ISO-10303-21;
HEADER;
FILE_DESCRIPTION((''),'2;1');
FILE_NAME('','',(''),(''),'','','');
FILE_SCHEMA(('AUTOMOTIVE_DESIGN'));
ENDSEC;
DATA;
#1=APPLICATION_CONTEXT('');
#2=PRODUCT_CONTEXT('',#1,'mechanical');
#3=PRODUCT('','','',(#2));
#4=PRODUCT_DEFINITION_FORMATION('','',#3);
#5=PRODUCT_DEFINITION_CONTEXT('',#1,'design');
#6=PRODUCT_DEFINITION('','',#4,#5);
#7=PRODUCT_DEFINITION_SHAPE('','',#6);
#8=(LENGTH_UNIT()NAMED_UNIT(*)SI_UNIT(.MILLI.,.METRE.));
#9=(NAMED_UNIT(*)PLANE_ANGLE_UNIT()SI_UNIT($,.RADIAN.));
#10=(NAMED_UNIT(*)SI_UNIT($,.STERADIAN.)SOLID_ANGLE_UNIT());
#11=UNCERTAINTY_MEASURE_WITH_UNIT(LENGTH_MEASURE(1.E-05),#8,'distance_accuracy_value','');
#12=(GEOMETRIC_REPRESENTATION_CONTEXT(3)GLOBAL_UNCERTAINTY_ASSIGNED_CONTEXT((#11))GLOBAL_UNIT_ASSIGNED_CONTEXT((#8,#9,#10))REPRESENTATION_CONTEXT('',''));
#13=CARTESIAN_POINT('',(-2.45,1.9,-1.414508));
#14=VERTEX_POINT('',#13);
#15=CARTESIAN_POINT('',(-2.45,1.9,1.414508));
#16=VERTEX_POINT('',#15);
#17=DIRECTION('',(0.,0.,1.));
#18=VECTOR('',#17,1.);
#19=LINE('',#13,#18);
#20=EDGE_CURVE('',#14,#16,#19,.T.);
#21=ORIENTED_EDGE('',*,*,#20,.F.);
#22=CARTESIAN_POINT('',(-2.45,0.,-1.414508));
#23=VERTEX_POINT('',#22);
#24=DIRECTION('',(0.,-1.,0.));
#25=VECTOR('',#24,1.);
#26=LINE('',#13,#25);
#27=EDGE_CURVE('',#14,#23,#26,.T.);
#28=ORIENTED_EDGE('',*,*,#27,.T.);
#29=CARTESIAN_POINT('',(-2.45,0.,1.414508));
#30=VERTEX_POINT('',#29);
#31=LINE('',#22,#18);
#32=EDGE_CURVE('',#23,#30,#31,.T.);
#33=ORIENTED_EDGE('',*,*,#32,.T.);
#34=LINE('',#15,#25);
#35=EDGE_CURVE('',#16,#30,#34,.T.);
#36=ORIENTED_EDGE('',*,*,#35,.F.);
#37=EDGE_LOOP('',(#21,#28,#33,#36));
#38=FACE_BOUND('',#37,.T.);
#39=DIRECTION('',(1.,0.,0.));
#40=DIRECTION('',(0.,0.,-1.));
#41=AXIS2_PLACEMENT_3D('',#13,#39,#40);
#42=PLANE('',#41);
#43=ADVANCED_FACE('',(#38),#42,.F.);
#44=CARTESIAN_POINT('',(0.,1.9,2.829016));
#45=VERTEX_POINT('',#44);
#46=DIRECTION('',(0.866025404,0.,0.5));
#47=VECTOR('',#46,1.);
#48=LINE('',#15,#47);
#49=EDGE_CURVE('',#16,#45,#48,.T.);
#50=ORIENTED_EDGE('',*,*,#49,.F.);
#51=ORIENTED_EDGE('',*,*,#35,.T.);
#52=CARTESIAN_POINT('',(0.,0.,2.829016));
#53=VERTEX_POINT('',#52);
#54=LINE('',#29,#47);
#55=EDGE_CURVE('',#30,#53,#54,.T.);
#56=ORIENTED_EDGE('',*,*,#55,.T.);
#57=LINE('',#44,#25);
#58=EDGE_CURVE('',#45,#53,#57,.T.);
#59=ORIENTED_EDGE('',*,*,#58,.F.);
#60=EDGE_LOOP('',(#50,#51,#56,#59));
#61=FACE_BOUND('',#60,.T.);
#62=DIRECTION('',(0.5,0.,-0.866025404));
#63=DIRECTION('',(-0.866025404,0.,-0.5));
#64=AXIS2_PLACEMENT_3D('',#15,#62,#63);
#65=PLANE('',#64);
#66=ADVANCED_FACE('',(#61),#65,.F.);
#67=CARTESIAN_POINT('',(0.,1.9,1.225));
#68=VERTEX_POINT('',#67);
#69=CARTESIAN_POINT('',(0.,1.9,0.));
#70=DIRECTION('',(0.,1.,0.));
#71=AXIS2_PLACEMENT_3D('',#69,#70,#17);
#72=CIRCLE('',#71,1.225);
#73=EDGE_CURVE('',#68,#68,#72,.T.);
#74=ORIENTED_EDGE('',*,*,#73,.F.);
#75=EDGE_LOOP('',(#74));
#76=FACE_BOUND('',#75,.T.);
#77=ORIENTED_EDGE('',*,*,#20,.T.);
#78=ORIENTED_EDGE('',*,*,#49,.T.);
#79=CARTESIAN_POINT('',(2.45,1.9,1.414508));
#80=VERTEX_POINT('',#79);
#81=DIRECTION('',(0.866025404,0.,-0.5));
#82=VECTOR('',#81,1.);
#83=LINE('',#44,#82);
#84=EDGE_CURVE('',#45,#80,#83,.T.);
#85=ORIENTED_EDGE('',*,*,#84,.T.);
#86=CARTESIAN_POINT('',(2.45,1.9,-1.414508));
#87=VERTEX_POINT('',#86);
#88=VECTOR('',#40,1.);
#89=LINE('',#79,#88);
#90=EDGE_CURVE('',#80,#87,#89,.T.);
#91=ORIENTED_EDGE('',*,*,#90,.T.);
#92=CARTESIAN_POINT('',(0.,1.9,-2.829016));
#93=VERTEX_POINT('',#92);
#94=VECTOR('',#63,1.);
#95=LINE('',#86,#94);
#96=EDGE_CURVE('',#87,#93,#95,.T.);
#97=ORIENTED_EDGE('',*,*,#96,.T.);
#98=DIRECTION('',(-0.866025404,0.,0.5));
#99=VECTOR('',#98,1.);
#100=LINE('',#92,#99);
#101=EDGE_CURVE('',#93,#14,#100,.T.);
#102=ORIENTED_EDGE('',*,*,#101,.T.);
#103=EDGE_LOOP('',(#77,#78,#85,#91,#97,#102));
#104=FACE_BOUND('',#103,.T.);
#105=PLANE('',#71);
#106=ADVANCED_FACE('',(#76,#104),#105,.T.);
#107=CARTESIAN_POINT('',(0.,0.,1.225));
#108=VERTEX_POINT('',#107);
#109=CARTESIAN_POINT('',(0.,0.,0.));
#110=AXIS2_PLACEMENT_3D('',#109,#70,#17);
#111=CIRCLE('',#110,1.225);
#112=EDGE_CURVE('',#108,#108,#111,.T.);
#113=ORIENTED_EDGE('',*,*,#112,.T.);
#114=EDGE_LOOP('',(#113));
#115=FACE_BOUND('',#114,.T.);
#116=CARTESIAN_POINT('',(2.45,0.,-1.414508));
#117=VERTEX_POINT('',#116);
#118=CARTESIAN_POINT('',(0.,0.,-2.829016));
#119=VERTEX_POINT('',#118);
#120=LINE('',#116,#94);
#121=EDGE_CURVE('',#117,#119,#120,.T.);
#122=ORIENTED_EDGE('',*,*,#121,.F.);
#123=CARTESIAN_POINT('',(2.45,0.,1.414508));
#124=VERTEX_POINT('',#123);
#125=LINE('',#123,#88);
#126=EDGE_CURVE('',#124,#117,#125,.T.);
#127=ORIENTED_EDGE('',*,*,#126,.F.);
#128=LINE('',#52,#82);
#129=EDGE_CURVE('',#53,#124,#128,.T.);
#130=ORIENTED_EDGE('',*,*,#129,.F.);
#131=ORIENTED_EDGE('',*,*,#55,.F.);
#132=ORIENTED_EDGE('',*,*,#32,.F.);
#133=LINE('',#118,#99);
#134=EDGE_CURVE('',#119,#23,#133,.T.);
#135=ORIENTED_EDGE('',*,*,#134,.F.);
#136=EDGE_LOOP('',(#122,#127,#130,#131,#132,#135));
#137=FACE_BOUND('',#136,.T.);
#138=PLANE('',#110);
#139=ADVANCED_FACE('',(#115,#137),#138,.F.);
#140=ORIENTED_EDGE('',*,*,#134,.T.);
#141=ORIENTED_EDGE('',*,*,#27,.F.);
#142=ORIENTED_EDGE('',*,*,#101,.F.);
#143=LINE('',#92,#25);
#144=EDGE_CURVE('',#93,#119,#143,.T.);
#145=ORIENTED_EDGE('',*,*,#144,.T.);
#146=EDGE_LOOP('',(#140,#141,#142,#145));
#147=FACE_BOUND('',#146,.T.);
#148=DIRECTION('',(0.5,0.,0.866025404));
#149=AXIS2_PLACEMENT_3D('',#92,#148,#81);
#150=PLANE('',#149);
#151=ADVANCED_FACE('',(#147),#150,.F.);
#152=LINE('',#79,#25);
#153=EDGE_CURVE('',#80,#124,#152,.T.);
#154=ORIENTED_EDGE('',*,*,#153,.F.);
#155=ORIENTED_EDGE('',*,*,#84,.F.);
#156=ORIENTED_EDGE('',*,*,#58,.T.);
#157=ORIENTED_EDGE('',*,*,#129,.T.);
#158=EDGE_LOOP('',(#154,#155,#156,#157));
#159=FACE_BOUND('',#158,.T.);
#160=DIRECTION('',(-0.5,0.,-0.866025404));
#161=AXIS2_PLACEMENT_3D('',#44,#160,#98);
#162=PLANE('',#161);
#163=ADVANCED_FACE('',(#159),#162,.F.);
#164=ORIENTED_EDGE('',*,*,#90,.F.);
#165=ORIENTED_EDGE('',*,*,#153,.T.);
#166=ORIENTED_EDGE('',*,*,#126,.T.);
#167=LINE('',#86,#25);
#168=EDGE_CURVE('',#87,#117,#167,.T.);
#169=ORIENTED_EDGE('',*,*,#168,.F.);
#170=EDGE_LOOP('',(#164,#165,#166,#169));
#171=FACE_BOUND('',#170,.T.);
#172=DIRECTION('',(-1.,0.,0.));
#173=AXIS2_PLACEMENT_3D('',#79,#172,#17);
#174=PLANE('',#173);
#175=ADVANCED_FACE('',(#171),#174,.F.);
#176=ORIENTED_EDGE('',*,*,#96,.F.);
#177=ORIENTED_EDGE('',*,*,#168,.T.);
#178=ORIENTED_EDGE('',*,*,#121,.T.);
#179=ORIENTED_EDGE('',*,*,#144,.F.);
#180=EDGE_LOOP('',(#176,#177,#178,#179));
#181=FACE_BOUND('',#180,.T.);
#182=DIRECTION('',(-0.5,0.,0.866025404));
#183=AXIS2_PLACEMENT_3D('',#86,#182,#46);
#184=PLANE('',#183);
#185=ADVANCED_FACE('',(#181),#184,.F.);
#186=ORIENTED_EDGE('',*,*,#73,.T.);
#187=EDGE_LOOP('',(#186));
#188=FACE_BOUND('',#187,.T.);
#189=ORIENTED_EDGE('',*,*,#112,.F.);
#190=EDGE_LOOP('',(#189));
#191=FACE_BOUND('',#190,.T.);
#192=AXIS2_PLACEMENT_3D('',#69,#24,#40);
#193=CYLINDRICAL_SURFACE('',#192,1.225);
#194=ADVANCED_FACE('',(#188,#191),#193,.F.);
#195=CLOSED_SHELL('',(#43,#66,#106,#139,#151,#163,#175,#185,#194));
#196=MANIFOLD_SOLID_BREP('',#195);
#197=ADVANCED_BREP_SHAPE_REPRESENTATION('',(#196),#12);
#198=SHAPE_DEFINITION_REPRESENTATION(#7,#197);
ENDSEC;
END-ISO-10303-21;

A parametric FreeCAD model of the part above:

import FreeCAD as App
import Part
import Sketcher
Q = App.Units.Quantity


def add_polygon(sketch, points):
    """Adds a closed chain of lines whose ends are joined by coincident constraints."""
    first, n = sketch.GeometryCount, len(points)
    for a, b in zip(points, points[1:] + points[:1]):
        sketch.addGeometry(Part.LineSegment(App.Vector(*a, 0), App.Vector(*b, 0)), False)
    for i in range(n):
        sketch.addConstraint(Sketcher.Constraint("Coincident", first + i, 2, first + (i + 1) % n, 1))

doc = App.newDocument("Part")
body = doc.addObject("PartDesign::Body", "Body")

# Sketch on XZ plane
sketch1 = doc.addObject("Sketcher::SketchObject", "Sketch")
body.addObject(sketch1)
sketch1.AttachmentSupport = (doc.XZ_Plane, [""])
sketch1.MapMode = "FlatFace"
add_polygon(sketch1, [(0, 2.8), (2.5, 1.4), (2.5, -1.4), (0, -2.8), (-2.5, -1.4), (-2.5, 1.4)])  # lines 0-5
sketch1.addGeometry(Part.Circle(App.Vector(0, 0, 0), App.Vector(0, 0, 1), 1.2), False)  # 6
sketch1.addConstraint([
    Sketcher.Constraint("Vertical", 1),
    Sketcher.Constraint("Vertical", 4),
    Sketcher.Constraint("Coincident", 6, 3, -1, 1),
    Sketcher.Constraint("Symmetric", 0, 2, 3, 2, -1, 1),
    Sketcher.Constraint("Symmetric", 2, 2, 5, 2, -1, 1),
    Sketcher.Constraint("PointOnObject", 2, 2, -2),
    Sketcher.Constraint("Parallel", 2, 5),
    Sketcher.Constraint("Horizontal", 1, 2, 3, 2),
    Sketcher.Constraint("Diameter", 6, Q("2.45 mm")),
    Sketcher.Constraint("Angle", 0, Q("-30 deg")),
    Sketcher.Constraint("DistanceX", 3, 2, 1, 2, Q("4.9 mm")),
    Sketcher.Constraint("DistanceY", 1, 2, 1, 1, Q("2.829016 mm")),
])
pad1 = doc.addObject("PartDesign::Pad", "Pad")
body.addObject(pad1)
pad1.Profile = sketch1
pad1.Length = 1.9
pad1.Reversed = True

doc.recompute()
